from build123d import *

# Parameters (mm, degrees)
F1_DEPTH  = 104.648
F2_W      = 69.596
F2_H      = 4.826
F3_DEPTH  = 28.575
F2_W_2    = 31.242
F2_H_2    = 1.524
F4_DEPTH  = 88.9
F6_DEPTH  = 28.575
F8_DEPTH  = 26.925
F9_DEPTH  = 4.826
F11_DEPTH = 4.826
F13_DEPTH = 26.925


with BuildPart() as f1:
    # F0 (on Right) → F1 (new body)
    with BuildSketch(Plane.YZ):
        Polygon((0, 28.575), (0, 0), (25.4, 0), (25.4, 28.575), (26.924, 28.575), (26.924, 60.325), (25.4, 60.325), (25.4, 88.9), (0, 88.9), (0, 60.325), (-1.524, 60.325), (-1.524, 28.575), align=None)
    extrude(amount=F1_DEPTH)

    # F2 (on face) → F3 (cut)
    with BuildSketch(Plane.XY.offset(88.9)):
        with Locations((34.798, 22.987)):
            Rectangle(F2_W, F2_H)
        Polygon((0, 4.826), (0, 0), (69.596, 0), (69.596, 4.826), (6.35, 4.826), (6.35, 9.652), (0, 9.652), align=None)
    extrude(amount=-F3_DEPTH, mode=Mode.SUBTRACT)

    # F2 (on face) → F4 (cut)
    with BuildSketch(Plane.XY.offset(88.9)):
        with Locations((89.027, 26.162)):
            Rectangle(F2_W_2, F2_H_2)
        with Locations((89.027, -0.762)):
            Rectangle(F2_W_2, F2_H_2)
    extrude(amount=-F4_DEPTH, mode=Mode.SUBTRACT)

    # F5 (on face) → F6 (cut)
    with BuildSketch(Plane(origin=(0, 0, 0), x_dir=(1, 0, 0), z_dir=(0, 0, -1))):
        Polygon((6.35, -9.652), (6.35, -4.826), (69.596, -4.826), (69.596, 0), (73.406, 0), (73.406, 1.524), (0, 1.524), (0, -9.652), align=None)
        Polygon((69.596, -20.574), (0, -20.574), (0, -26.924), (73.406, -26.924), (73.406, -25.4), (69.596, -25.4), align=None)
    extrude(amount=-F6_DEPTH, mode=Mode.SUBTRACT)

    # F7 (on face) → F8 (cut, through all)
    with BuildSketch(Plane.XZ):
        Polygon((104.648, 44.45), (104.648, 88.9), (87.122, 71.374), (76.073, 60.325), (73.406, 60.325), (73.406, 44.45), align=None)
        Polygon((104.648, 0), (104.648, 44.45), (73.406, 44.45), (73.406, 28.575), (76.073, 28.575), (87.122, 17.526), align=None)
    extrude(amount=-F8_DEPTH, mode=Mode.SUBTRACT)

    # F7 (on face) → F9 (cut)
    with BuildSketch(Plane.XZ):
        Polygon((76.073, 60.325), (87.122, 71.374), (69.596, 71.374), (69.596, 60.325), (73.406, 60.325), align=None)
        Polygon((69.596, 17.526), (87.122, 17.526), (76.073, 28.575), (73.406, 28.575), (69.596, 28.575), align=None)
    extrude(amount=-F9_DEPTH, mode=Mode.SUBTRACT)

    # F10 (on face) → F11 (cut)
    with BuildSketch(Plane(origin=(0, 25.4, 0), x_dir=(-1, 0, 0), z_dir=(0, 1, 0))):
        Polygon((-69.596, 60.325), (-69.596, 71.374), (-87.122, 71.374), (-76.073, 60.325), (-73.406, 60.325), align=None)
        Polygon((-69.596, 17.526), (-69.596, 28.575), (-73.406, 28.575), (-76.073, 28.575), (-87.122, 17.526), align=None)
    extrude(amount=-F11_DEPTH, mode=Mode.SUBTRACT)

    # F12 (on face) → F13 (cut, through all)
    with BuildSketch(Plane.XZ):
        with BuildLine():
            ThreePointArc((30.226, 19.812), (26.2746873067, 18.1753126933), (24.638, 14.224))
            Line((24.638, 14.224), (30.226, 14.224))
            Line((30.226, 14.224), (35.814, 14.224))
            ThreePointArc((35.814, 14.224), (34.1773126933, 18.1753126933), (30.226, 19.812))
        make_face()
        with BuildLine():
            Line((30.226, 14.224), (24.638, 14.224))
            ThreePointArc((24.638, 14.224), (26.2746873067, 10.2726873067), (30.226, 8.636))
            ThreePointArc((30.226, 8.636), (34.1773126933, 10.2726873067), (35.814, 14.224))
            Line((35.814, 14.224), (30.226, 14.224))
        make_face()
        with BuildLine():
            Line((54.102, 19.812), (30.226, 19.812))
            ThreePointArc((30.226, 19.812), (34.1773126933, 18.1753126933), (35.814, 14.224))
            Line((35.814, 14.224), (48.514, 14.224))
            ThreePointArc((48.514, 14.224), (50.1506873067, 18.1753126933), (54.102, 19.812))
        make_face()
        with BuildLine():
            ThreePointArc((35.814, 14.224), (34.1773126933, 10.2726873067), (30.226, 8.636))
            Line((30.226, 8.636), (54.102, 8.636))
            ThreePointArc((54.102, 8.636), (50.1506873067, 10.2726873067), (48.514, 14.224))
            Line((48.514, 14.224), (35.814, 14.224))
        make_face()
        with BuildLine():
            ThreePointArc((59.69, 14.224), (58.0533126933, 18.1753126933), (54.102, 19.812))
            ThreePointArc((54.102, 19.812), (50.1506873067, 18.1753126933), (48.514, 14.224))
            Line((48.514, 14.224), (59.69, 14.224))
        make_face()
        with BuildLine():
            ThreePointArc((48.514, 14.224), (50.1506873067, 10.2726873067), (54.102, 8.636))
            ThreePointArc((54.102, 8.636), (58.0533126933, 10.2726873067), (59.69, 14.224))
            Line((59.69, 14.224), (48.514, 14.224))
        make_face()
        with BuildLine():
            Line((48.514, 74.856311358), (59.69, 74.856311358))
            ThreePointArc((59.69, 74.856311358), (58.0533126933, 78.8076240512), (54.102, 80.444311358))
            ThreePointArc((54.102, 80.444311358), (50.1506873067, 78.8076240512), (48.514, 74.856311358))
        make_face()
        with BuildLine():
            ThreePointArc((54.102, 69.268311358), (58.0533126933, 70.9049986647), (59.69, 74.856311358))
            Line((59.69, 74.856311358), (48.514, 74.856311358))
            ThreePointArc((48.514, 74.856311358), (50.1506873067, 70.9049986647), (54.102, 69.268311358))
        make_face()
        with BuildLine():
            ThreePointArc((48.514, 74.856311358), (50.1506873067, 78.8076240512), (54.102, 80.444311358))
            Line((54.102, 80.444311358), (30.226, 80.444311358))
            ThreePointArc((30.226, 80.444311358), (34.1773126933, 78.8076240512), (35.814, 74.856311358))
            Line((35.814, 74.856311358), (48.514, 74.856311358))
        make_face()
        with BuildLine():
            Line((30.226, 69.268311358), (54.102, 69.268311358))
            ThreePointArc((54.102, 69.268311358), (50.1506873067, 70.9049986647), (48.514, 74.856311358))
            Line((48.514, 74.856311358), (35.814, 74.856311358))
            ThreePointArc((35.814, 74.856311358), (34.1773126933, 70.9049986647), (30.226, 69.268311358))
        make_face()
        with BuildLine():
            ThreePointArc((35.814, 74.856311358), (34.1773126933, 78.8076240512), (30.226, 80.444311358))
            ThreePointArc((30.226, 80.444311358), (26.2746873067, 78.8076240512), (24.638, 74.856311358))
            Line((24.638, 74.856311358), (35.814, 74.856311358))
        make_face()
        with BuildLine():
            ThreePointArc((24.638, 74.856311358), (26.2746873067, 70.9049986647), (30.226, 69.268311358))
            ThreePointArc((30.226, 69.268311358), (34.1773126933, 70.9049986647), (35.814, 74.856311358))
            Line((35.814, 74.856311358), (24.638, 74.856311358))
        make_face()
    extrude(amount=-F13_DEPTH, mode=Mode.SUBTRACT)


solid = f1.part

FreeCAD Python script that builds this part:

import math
import FreeCAD as App
import Part
import Sketcher
from FreeCAD import Vector
Q = App.Units.Quantity


def add_polygon(sketch, points):
    """Adds a closed chain of lines whose ends are joined by coincident constraints."""
    first, n = sketch.GeometryCount, len(points)
    for a, b in zip(points, points[1:] + points[:1]):
        sketch.addGeometry(Part.LineSegment(App.Vector(*a, 0), App.Vector(*b, 0)), False)
    for i in range(n):
        sketch.addConstraint(Sketcher.Constraint("Coincident", first + i, 2, first + (i + 1) % n, 1))

doc = App.newDocument("Part")
body = doc.addObject("PartDesign::Body", "Body")

sketch1 = body.newObject("Sketcher::SketchObject", "Sketch")
sketch1.AttachmentSupport = (doc.getObject("YZ_Plane"), [""])
sketch1.MapMode = "FlatFace"
add_polygon(sketch1, [(0, 28.575), (0, 0), (25.4, 0), (25.4, 28.575), (26.924, 28.575), (26.924, 60.325), (25.4, 60.325), (25.4, 88.9), (0, 88.9), (0, 60.325), (-1.524, 60.325), (-1.524, 28.575)])
sketch1.addConstraint(Sketcher.Constraint("Vertical", 0))
sketch1.addConstraint(Sketcher.Constraint("Horizontal", 1))
sketch1.addConstraint(Sketcher.Constraint("Vertical", 2))
sketch1.addConstraint(Sketcher.Constraint("Horizontal", 3))
sketch1.addConstraint(Sketcher.Constraint("Vertical", 4))
sketch1.addConstraint(Sketcher.Constraint("Horizontal", 5))
sketch1.addConstraint(Sketcher.Constraint("Vertical", 6))
sketch1.addConstraint(Sketcher.Constraint("Horizontal", 7))
sketch1.addConstraint(Sketcher.Constraint("Vertical", 8))
sketch1.addConstraint(Sketcher.Constraint("Horizontal", 9))
sketch1.addConstraint(Sketcher.Constraint("Vertical", 10))
sketch1.addConstraint(Sketcher.Constraint("Horizontal", 11))
sketch1.addConstraint(Sketcher.Constraint("Coincident", 0, 2, -1, 1))
sketch1.addConstraint(Sketcher.Constraint("PointOnObject", 7, 2, -2))
sketch1.addConstraint(Sketcher.Constraint("Horizontal", 5, 2, 8, 2))
sketch1.addConstraint(Sketcher.Constraint("Horizontal", 3, 2, 10, 2))
sketch1.addConstraint(Sketcher.Constraint("Vertical", 2, 2, 5, 2))
sketch1.addConstraint(Sketcher.Constraint("Equal", 5, 9))
sketch1.addConstraint(Sketcher.Constraint("Equal", 2, 6))
sketch1.addConstraint(Sketcher.Constraint("DistanceX", 1, 1, 1, 2, Q("1 in")))
sketch1.addConstraint(Sketcher.Constraint("DistanceX", 3, 1, 3, 2, Q("0.06 in")))
sketch1.addConstraint(Sketcher.Constraint("DistanceY", 4, 1, 4, 2, Q("1.25 in")))
sketch1.addConstraint(Sketcher.Constraint("DistanceY", -1, 1, 6, 2, Q("3.5 in")))
pad1 = body.newObject("PartDesign::Pad", "Pad")
pad1.Profile = sketch1
pad1.Length = Q("4.12 in")

sketch2 = body.newObject("Sketcher::SketchObject", "Sketch001")
sketch2.AttachmentSupport = (doc.getObject("XY_Plane"), [""])
sketch2.MapMode = "FlatFace"
sketch2.AttachmentOffset = App.Placement(Vector(0, 0, 3.5 * 25.4), App.Rotation())
add_polygon(sketch2, [(0, 25.4), (0, 20.574), (69.596, 20.574), (69.596, 25.4)])
add_polygon(sketch2, [(0, 0), (69.596, 0), (69.596, 4.826), (6.35, 4.826), (6.35, 9.652), (0, 9.652)])
sketch2.addConstraint(Sketcher.Constraint("Vertical", 0))
sketch2.addConstraint(Sketcher.Constraint("Horizontal", 1))
sketch2.addConstraint(Sketcher.Constraint("Vertical", 2))
sketch2.addConstraint(Sketcher.Constraint("Horizontal", 3))
sketch2.addConstraint(Sketcher.Constraint("Horizontal", 4))
sketch2.addConstraint(Sketcher.Constraint("Vertical", 5))
sketch2.addConstraint(Sketcher.Constraint("Horizontal", 6))
sketch2.addConstraint(Sketcher.Constraint("Vertical", 7))
sketch2.addConstraint(Sketcher.Constraint("Horizontal", 8))
sketch2.addConstraint(Sketcher.Constraint("Vertical", 9))
sketch2.addConstraint(Sketcher.Constraint("Coincident", 9, 2, -1, 1))
sketch2.addConstraint(Sketcher.Constraint("PointOnObject", 0, 2, -2))
sketch2.addConstraint(Sketcher.Constraint("Vertical", 2, 2, 4, 2))
sketch2.addConstraint(Sketcher.Constraint("Equal", 2, 5))
sketch2.addConstraint(Sketcher.Constraint("Equal", 5, 7))
sketch2.addConstraint(Sketcher.Constraint("DistanceY", -1, 1, 2, 2, Q("1 in")))
sketch2.addConstraint(Sketcher.Constraint("DistanceX", 1, 1, 1, 2, Q("2.74 in")))
sketch2.addConstraint(Sketcher.Constraint("DistanceX", 6, 2, 6, 1, Q("2.49 in")))
sketch2.addConstraint(Sketcher.Constraint("DistanceY", 0, 2, 0, 1, Q("0.19 in")))
pocket1 = body.newObject("PartDesign::Pocket", "Pocket")
pocket1.Profile = sketch2
pocket1.Length = Q("1.125 in")

sketch3 = body.newObject("Sketcher::SketchObject", "Sketch002")
sketch3.AttachmentSupport = (doc.getObject("XY_Plane"), [""])
sketch3.MapMode = "FlatFace"
sketch3.AttachmentOffset = App.Placement(Vector(0, 0, 3.5 * 25.4), App.Rotation())
add_polygon(sketch3, [(73.406, 26.924), (73.406, 25.4), (104.648, 25.4), (104.648, 26.924)])
add_polygon(sketch3, [(73.406, 0), (73.406, -1.524), (104.648, -1.524), (104.648, 0)])
sketch3.addConstraint(Sketcher.Constraint("Vertical", 0))
sketch3.addConstraint(Sketcher.Constraint("Horizontal", 1))
sketch3.addConstraint(Sketcher.Constraint("Vertical", 2))
sketch3.addConstraint(Sketcher.Constraint("Horizontal", 3))
sketch3.addConstraint(Sketcher.Constraint("Vertical", 4))
sketch3.addConstraint(Sketcher.Constraint("Horizontal", 5))
sketch3.addConstraint(Sketcher.Constraint("Vertical", 6))
sketch3.addConstraint(Sketcher.Constraint("Horizontal", 7))
sketch3.addConstraint(Sketcher.Constraint("PointOnObject", 6, 2, -1))
sketch3.addConstraint(Sketcher.Constraint("Vertical", 3, 2, 4, 2))
sketch3.addConstraint(Sketcher.Constraint("Vertical", 2, 2, 5, 2))
sketch3.addConstraint(Sketcher.Constraint("Equal", 2, 4))
sketch3.addConstraint(Sketcher.Constraint("DistanceY", -1, 1, 0, 2, Q("1 in")))
sketch3.addConstraint(Sketcher.Constraint("DistanceX", 1, 1, 1, 2, Q("1.23 in")))
sketch3.addConstraint(Sketcher.Constraint("DistanceY", 0, 2, 0, 1, Q("0.06 in")))
sketch3.addConstraint(Sketcher.Constraint("DistanceX", -1, 1, 0, 2, Q("2.89 in")))
pocket2 = body.newObject("PartDesign::Pocket", "Pocket001")
pocket2.Profile = sketch3
pocket2.Length = Q("3.5 in")

sketch4 = body.newObject("Sketcher::SketchObject", "Sketch003")
sketch4.AttachmentSupport = (doc.getObject("XY_Plane"), [""])
sketch4.MapMode = "FlatFace"
add_polygon(sketch4, [(6.35, 9.652), (6.35, 4.826), (69.596, 4.826), (69.596, 0), (73.406, 0), (73.406, -1.524), (0, -1.524), (0, 9.652)])
add_polygon(sketch4, [(69.596, 20.574), (0, 20.574), (0, 26.924), (73.406, 26.924), (73.406, 25.4), (69.596, 25.4)])
sketch4.addConstraint(Sketcher.Constraint("Vertical", 0))
sketch4.addConstraint(Sketcher.Constraint("Horizontal", 1))
sketch4.addConstraint(Sketcher.Constraint("Vertical", 2))
sketch4.addConstraint(Sketcher.Constraint("Horizontal", 3))
sketch4.addConstraint(Sketcher.Constraint("Vertical", 4))
sketch4.addConstraint(Sketcher.Constraint("Horizontal", 5))
sketch4.addConstraint(Sketcher.Constraint("Vertical", 6))
sketch4.addConstraint(Sketcher.Constraint("Horizontal", 7))
sketch4.addConstraint(Sketcher.Constraint("Horizontal", 8))
sketch4.addConstraint(Sketcher.Constraint("Vertical", 9))
sketch4.addConstraint(Sketcher.Constraint("Horizontal", 10))
sketch4.addConstraint(Sketcher.Constraint("Vertical", 11))
sketch4.addConstraint(Sketcher.Constraint("Horizontal", 12))
sketch4.addConstraint(Sketcher.Constraint("Vertical", 13))
sketch4.addConstraint(Sketcher.Constraint("PointOnObject", 2, 2, -1))
sketch4.addConstraint(Sketcher.Constraint("PointOnObject", 5, 2, -2))
sketch4.addConstraint(Sketcher.Constraint("PointOnObject", 8, 2, -2))
sketch4.addConstraint(Sketcher.Constraint("Vertical", 4, 2, 10, 2))
sketch4.addConstraint(Sketcher.Constraint("Vertical", 2, 2, 12, 2))
sketch4.addConstraint(Sketcher.Constraint("Equal", 0, 2))
sketch4.addConstraint(Sketcher.Constraint("Equal", 7, 9))
sketch4.addConstraint(Sketcher.Constraint("Equal", 4, 11))
sketch4.addConstraint(Sketcher.Constraint("Equal", 2, 13))
sketch4.addConstraint(Sketcher.Constraint("DistanceY", -1, 1, 11, 2, Q("1 in")))
sketch4.addConstraint(Sketcher.Constraint("DistanceX", 1, 1, 1, 2, Q("2.49 in")))
sketch4.addConstraint(Sketcher.Constraint("DistanceX", 3, 1, 3, 2, Q("0.15 in")))
sketch4.addConstraint(Sketcher.Constraint("DistanceX", 5, 2, 5, 1, Q("2.89 in")))
sketch4.addConstraint(Sketcher.Constraint("DistanceY", 0, 2, 0, 1, Q("0.19 in")))
pocket3 = body.newObject("PartDesign::Pocket", "Pocket002")
pocket3.Profile = sketch4
pocket3.Length = Q("1.125 in")
pocket3.Reversed = True

sketch5 = body.newObject("Sketcher::SketchObject", "Sketch004")
sketch5.AttachmentSupport = (doc.getObject("XZ_Plane"), [""])
sketch5.MapMode = "FlatFace"
add_polygon(sketch5, [(104.648, 88.9), (76.073, 60.325), (73.406, 60.325), (73.406, 28.575), (76.073, 28.575), (104.648, 0)])
sketch5.addConstraint(Sketcher.Constraint("Horizontal", 1))
sketch5.addConstraint(Sketcher.Constraint("Vertical", 2))
sketch5.addConstraint(Sketcher.Constraint("Horizontal", 3))
sketch5.addConstraint(Sketcher.Constraint("Vertical", 5))
sketch5.addConstraint(Sketcher.Constraint("PointOnObject", 4, 2, -1))
sketch5.addConstraint(Sketcher.Constraint("Perpendicular", 0, 4))
sketch5.addConstraint(Sketcher.Constraint("Vertical", 0, 2, 3, 2))
sketch5.addConstraint(Sketcher.Constraint("Equal", 0, 4))
sketch5.addConstraint(Sketcher.Constraint("DistanceY", 5, 1, 5, 2, Q("3.5 in")))
sketch5.addConstraint(Sketcher.Constraint("DistanceY", 2, 2, 2, 1, Q("1.25 in")))
sketch5.addConstraint(Sketcher.Constraint("DistanceX", 1, 2, 1, 1, Q("0.105 in")))
sketch5.addConstraint(Sketcher.Constraint("DistanceX", -1, 1, 1, 2, Q("2.89 in")))
pocket4 = body.newObject("PartDesign::Pocket", "Pocket003")
pocket4.Profile = sketch5
pocket4.Type = "ThroughAll"

sketch6 = body.newObject("Sketcher::SketchObject", "Sketch005")
sketch6.AttachmentSupport = (doc.getObject("XZ_Plane"), [""])
sketch6.MapMode = "FlatFace"
add_polygon(sketch6, [(76.073, 60.325), (87.122, 71.374), (69.596, 71.374), (69.596, 60.325)])
add_polygon(sketch6, [(69.596, 17.526), (87.122, 17.526), (76.073, 28.575), (69.596, 28.575)])
sketch6.addConstraint(Sketcher.Constraint("Horizontal", 1))
sketch6.addConstraint(Sketcher.Constraint("Vertical", 2))
sketch6.addConstraint(Sketcher.Constraint("Horizontal", 3))
sketch6.addConstraint(Sketcher.Constraint("Horizontal", 4))
sketch6.addConstraint(Sketcher.Constraint("Horizontal", 6))
sketch6.addConstraint(Sketcher.Constraint("Vertical", 7))
sketch6.addConstraint(Sketcher.Constraint("Perpendicular", 0, 5))
sketch6.addConstraint(Sketcher.Constraint("Vertical", 0, 2, 4, 2))
sketch6.addConstraint(Sketcher.Constraint("Vertical", 3, 2, 5, 2))
sketch6.addConstraint(Sketcher.Constraint("Vertical", 2, 2, 6, 2))
sketch6.addConstraint(Sketcher.Constraint("Equal", 2, 7))
sketch6.addConstraint(Sketcher.Constraint("DistanceX", 1, 2, 1, 1, Q("0.69 in")))
sketch6.addConstraint(Sketcher.Constraint("DistanceX", 3, 1, 3, 2, Q("0.255 in")))
sketch6.addConstraint(Sketcher.Constraint("DistanceX", -1, 1, 0, 2, Q("3.43 in")))
sketch6.addConstraint(Sketcher.Constraint("DistanceY", -1, 1, 0, 2, Q("2.81 in")))
sketch6.addConstraint(Sketcher.Constraint("DistanceY", -1, 1, 4, 2, Q("0.69 in")))
pocket5 = body.newObject("PartDesign::Pocket", "Pocket004")
pocket5.Profile = sketch6
pocket5.Length = Q("0.19 in")

sketch7 = body.newObject("Sketcher::SketchObject", "Sketch006")
sketch7.AttachmentSupport = (doc.getObject("XZ_Plane"), [""])
sketch7.MapMode = "FlatFace"
sketch7.AttachmentOffset = App.Placement(Vector(0, 0, -1 * 25.4), App.Rotation())
add_polygon(sketch7, [(69.596, 60.325), (69.596, 71.374), (87.122, 71.374), (76.073, 60.325)])
add_polygon(sketch7, [(69.596, 17.526), (69.596, 28.575), (76.073, 28.575), (87.122, 17.526)])
sketch7.addConstraint(Sketcher.Constraint("Vertical", 0))
sketch7.addConstraint(Sketcher.Constraint("Horizontal", 1))
sketch7.addConstraint(Sketcher.Constraint("Horizontal", 3))
sketch7.addConstraint(Sketcher.Constraint("Vertical", 4))
sketch7.addConstraint(Sketcher.Constraint("Horizontal", 5))
sketch7.addConstraint(Sketcher.Constraint("Horizontal", 7))
sketch7.addConstraint(Sketcher.Constraint("Perpendicular", 2, 6))
sketch7.addConstraint(Sketcher.Constraint("Vertical", 3, 2, 4, 2))
sketch7.addConstraint(Sketcher.Constraint("Vertical", 2, 2, 5, 2))
sketch7.addConstraint(Sketcher.Constraint("Vertical", 1, 2, 6, 2))
sketch7.addConstraint(Sketcher.Constraint("Equal", 0, 4))
sketch7.addConstraint(Sketcher.Constraint("DistanceX", 1, 1, 1, 2, Q("0.69 in")))
sketch7.addConstraint(Sketcher.Constraint("DistanceX", 3, 2, 3, 1, Q("0.255 in")))
sketch7.addConstraint(Sketcher.Constraint("DistanceX", -1, 1, 0, 2, Q("2.74 in")))
sketch7.addConstraint(Sketcher.Constraint("DistanceY", -1, 1, 0, 2, Q("2.81 in")))
sketch7.addConstraint(Sketcher.Constraint("DistanceY", -1, 1, 6, 2, Q("0.69 in")))
pocket6 = body.newObject("PartDesign::Pocket", "Pocket005")
pocket6.Profile = sketch7
pocket6.Length = Q("0.19 in")
pocket6.Reversed = True

sketch8 = body.newObject("Sketcher::SketchObject", "Sketch007")
sketch8.AttachmentSupport = (doc.getObject("XZ_Plane"), [""])
sketch8.MapMode = "FlatFace"
sketch8.addGeometry(Part.ArcOfCircle(Part.Circle(Vector(30.226, 14.224, 0), Vector(0, 0, 1), 5.588), math.radians(90), math.radians(180)), False)
sketch8.addGeometry(Part.ArcOfCircle(Part.Circle(Vector(30.226, 14.224, 0), Vector(0, 0, 1), 5.588), math.radians(180), math.radians(270)), False)
sketch8.addGeometry(Part.LineSegment(Vector(30.226, 8.636, 0), Vector(54.102, 8.636, 0)), False)
sketch8.addGeometry(Part.ArcOfCircle(Part.Circle(Vector(54.102, 14.224, 0), Vector(0, 0, 1), 5.588), math.radians(-90), math.radians(0)), False)
sketch8.addGeometry(Part.ArcOfCircle(Part.Circle(Vector(54.102, 14.224, 0), Vector(0, 0, 1), 5.588), math.radians(0), math.radians(90)), False)
sketch8.addGeometry(Part.LineSegment(Vector(54.102, 19.812, 0), Vector(30.226, 19.812, 0)), False)
sketch8.addGeometry(Part.ArcOfCircle(Part.Circle(Vector(54.102, 74.856311, 0), Vector(0, 0, 1), 5.588), math.radians(0), math.radians(90)), False)
sketch8.addGeometry(Part.LineSegment(Vector(54.102, 80.444311, 0), Vector(30.226, 80.444311, 0)), False)
sketch8.addGeometry(Part.ArcOfCircle(Part.Circle(Vector(30.226, 74.856311, 0), Vector(0, 0, 1), 5.588), math.radians(90), math.radians(180)), False)
sketch8.addGeometry(Part.ArcOfCircle(Part.Circle(Vector(30.226, 74.856311, 0), Vector(0, 0, 1), 5.588), math.radians(180), math.radians(270)), False)
sketch8.addGeometry(Part.LineSegment(Vector(30.226, 69.268311, 0), Vector(54.102, 69.268311, 0)), False)
sketch8.addGeometry(Part.ArcOfCircle(Part.Circle(Vector(54.102, 74.856311, 0), Vector(0, 0, 1), 5.588), math.radians(-90), math.radians(0)), False)
sketch8.addConstraint(Sketcher.Constraint("Tangent", 0, 2, 1, 1))
sketch8.addConstraint(Sketcher.Constraint("Tangent", 1, 2, 2, 1))
sketch8.addConstraint(Sketcher.Constraint("Tangent", 2, 2, 3, 1))
sketch8.addConstraint(Sketcher.Constraint("Tangent", 3, 2, 4, 1))
sketch8.addConstraint(Sketcher.Constraint("Tangent", 4, 2, 5, 1))
sketch8.addConstraint(Sketcher.Constraint("Tangent", 5, 2, 0, 1))
sketch8.addConstraint(Sketcher.Constraint("Tangent", 6, 2, 7, 1))
sketch8.addConstraint(Sketcher.Constraint("Tangent", 7, 2, 8, 1))
sketch8.addConstraint(Sketcher.Constraint("Tangent", 8, 2, 9, 1))
sketch8.addConstraint(Sketcher.Constraint("Tangent", 9, 2, 10, 1))
sketch8.addConstraint(Sketcher.Constraint("Tangent", 10, 2, 11, 1))
sketch8.addConstraint(Sketcher.Constraint("Tangent", 11, 2, 6, 1))
sketch8.addConstraint(Sketcher.Constraint("Horizontal", 2))
sketch8.addConstraint(Sketcher.Constraint("Horizontal", 5))
sketch8.addConstraint(Sketcher.Constraint("Horizontal", 7))
sketch8.addConstraint(Sketcher.Constraint("Horizontal", 10))
sketch8.addConstraint(Sketcher.Constraint("Equal", 0, 1))
sketch8.addConstraint(Sketcher.Constraint("Equal", 1, 3))
sketch8.addConstraint(Sketcher.Constraint("Equal", 4, 6))
sketch8.addConstraint(Sketcher.Constraint("Equal", 6, 8))
sketch8.addConstraint(Sketcher.Constraint("Equal", 8, 9))
sketch8.addConstraint(Sketcher.Constraint("Horizontal", 4, 3, 0, 2))
sketch8.addConstraint(Sketcher.Constraint("Horizontal", 0, 2, 3, 2))
sketch8.addConstraint(Sketcher.Constraint("Horizontal", 11, 3, 8, 2))
sketch8.addConstraint(Sketcher.Constraint("Horizontal", 8, 2, 11, 2))
sketch8.addConstraint(Sketcher.Constraint("Vertical", 4, 3, 6, 3))
sketch8.addConstraint(Sketcher.Constraint("Vertical", 1, 3, 8, 3))
sketch8.addConstraint(Sketcher.Constraint("Radius", 0, Q("0.22 in")))
sketch8.addConstraint(Sketcher.Constraint("DistanceX", 2, 1, 2, 2, Q("0.94 in")))
sketch8.addConstraint(Sketcher.Constraint("DistanceX", -1, 1, 0, 3, Q("1.19 in")))
sketch8.addConstraint(Sketcher.Constraint("DistanceY", -1, 1, 0, 3, Q("0.56 in")))
sketch8.addConstraint(Sketcher.Constraint("DistanceY", -1, 1, 6, 3, 74.856311))
pocket7 = body.newObject("PartDesign::Pocket", "Pocket006")
pocket7.Profile = sketch8
pocket7.Type = "ThroughAll"

doc.recompute()
